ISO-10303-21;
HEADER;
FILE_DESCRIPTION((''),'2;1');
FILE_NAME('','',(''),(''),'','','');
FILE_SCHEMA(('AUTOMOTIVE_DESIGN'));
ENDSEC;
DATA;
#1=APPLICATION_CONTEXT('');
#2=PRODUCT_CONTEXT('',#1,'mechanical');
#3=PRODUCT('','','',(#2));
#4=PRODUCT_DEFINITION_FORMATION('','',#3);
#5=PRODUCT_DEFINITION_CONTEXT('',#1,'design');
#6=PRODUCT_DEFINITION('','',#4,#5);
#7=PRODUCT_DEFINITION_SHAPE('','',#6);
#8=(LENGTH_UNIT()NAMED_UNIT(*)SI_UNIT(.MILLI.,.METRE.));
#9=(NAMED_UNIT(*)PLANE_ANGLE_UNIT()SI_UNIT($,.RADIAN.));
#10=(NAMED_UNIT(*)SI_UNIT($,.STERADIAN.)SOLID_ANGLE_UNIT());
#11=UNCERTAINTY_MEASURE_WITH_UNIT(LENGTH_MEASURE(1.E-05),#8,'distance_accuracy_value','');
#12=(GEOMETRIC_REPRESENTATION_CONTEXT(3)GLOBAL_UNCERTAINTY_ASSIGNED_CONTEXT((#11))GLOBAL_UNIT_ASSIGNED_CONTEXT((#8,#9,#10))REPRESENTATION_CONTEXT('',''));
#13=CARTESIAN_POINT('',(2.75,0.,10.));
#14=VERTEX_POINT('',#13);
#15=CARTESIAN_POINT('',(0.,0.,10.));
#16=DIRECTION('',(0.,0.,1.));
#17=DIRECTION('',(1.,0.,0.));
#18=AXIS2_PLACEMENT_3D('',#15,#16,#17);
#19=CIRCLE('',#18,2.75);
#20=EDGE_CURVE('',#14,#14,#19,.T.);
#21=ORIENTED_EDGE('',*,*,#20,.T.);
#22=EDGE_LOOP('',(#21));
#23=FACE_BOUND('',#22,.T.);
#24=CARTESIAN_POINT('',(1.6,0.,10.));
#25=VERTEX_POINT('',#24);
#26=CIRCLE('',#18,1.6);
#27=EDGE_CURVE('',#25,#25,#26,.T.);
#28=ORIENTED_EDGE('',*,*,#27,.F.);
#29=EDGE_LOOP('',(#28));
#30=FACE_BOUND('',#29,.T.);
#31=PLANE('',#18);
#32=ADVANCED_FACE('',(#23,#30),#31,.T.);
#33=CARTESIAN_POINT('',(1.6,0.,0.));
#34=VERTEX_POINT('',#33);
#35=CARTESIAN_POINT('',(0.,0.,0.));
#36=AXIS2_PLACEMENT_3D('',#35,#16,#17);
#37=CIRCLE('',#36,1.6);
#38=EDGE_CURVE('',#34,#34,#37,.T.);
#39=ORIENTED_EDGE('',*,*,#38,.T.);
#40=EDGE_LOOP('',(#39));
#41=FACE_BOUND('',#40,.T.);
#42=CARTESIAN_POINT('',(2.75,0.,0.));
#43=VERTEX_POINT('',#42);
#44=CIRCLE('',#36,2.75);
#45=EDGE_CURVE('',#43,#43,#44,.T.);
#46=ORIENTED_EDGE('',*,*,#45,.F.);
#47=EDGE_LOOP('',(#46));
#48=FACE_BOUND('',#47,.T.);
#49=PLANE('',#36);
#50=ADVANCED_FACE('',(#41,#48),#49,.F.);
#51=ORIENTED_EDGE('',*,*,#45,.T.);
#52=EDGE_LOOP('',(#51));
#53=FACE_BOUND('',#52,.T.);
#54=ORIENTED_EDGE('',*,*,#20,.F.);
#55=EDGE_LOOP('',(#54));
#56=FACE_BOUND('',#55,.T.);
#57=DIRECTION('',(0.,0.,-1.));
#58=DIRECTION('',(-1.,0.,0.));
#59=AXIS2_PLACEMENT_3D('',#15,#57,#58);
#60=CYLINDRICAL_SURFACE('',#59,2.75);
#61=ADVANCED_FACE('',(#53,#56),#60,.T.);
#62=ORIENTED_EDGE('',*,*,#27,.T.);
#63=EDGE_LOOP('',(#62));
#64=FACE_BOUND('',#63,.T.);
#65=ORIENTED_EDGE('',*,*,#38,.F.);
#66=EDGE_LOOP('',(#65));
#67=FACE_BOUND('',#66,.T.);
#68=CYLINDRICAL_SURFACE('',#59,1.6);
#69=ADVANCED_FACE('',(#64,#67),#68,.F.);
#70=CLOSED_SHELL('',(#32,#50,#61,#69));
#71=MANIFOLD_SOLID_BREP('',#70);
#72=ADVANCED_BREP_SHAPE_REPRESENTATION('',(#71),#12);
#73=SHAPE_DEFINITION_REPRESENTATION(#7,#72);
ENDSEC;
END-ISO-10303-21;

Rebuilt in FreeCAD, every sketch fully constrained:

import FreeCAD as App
import Part
import Sketcher

V = App.Vector

doc = App.newDocument("Part")
params = doc.addObject("Spreadsheet::Sheet", "Params")
for row, (alias, value) in enumerate([
    ("sketch1_diameter", "5.5 mm"),
    ("sketch1_diameter2", "3.2 mm"),
    ("pad1_length", "10 mm"),
], start=1):
    params.set(f"A{row}", alias)
    params.set(f"B{row}", "=" + value)
    params.setAlias(f"B{row}", alias)

body = doc.addObject("PartDesign::Body", "Body")

# Sketch on XY plane
sketch1 = doc.addObject("Sketcher::SketchObject", "Sketch")
body.addObject(sketch1)
sketch1.AttachmentSupport = (doc.XY_Plane, [""])
sketch1.MapMode = "FlatFace"
sketch1.addGeometry([
    Part.Circle(V(0, 0, 0), V(0, 0, 1), 2.8),
    Part.Circle(V(0, 0, 0), V(0, 0, 1), 1.6),
], False)
sketch1.addConstraint([
    Sketcher.Constraint("Coincident", 0, 3, -1, 1),
    Sketcher.Constraint("Coincident", 1, 3, -1, 1),
    Sketcher.Constraint("Diameter", 0, 5.5),
    Sketcher.Constraint("Diameter", 1, 3.2),
])
sketch1.setExpression("Constraints[2]", "Params.sketch1_diameter")
sketch1.setExpression("Constraints[3]", "Params.sketch1_diameter2")
pad1 = doc.addObject("PartDesign::Pad", "Pad")
body.addObject(pad1)
pad1.Profile = sketch1
pad1.setExpression("Length", "Params.pad1_length")

doc.recompute()
